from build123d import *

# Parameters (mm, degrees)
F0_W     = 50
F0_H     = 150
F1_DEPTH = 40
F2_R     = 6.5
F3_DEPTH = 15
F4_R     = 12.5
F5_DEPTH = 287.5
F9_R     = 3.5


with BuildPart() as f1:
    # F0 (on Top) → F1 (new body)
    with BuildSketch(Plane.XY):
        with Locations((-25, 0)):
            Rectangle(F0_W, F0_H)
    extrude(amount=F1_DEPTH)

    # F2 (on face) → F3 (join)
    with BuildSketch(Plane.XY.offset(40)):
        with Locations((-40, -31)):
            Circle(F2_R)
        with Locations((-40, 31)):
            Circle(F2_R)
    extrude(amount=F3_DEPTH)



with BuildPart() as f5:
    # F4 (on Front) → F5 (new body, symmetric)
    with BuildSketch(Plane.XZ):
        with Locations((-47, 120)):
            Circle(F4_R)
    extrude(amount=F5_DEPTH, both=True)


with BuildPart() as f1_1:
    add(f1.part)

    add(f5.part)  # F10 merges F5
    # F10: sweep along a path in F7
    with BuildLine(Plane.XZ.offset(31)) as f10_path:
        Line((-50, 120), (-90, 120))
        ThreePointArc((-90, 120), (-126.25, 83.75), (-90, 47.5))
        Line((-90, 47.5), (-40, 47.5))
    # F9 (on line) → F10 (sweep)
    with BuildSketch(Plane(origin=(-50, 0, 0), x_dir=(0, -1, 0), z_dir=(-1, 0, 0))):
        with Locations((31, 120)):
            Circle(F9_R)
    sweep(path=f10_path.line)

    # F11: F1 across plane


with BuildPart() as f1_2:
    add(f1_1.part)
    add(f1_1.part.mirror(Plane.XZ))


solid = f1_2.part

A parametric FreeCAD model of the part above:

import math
import FreeCAD as App
import Part
import Sketcher

V = App.Vector
Q = App.Units.Quantity


def add_polygon(sketch, points):
    """Adds a closed chain of lines whose ends are joined by coincident constraints."""
    first, n = sketch.GeometryCount, len(points)
    for a, b in zip(points, points[1:] + points[:1]):
        sketch.addGeometry(Part.LineSegment(App.Vector(*a, 0), App.Vector(*b, 0)), False)
    for i in range(n):
        sketch.addConstraint(Sketcher.Constraint("Coincident", first + i, 2, first + (i + 1) % n, 1))

doc = App.newDocument("Part")
body = doc.addObject("PartDesign::Body", "Body")

# Sketch on XY plane
sketch1 = doc.addObject("Sketcher::SketchObject", "Sketch")
body.addObject(sketch1)
sketch1.AttachmentSupport = (doc.XY_Plane, [""])
sketch1.MapMode = "FlatFace"
add_polygon(sketch1, [(-50, 75), (-50, -75), (0, -75), (0, 75)])  # lines 0-3
sketch1.addConstraint([
    Sketcher.Constraint("Vertical", 0),
    Sketcher.Constraint("Horizontal", 1),
    Sketcher.Constraint("Vertical", 2),
    Sketcher.Constraint("Horizontal", 3),
    Sketcher.Constraint("Symmetric", 1, 2, 2, 2, -1, 1),
    Sketcher.Constraint("DistanceX", 1, 1, 1, 2, Q("50 mm")),
    Sketcher.Constraint("DistanceY", 0, 2, 0, 1, Q("150 mm")),
])
pad1 = doc.addObject("PartDesign::Pad", "Pad")
body.addObject(pad1)
pad1.Profile = sketch1
pad1.Length = 40

# Sketch on XY plane
sketch2 = doc.addObject("Sketcher::SketchObject", "Sketch001")
body.addObject(sketch2)
sketch2.AttachmentSupport = (doc.XY_Plane, [""])
sketch2.MapMode = "FlatFace"
sketch2.AttachmentOffset = App.Placement(V(0, 0, 40), App.Rotation())
sketch2.addGeometry([
    Part.Circle(V(-40, -31, 0), V(0, 0, 1), 6.5),
    Part.Circle(V(-40, 31, 0), V(0, 0, 1), 6.5),
], False)
sketch2.addConstraint([
    Sketcher.Constraint("Equal", 0, 1),
    Sketcher.Constraint("Symmetric", 0, 3, 1, 3, -1),
    Sketcher.Constraint("Diameter", 0, Q("13 mm")),
    Sketcher.Constraint("DistanceX", 0, 3, -1, 1, Q("40 mm")),
    Sketcher.Constraint("DistanceY", 0, 3, -1, 1, Q("31 mm")),
])
pad2 = doc.addObject("PartDesign::Pad", "Pad001")
body.addObject(pad2)
pad2.Profile = sketch2
pad2.Length = 15
body2 = doc.addObject("PartDesign::Body", "Body001")

# Sketch on XZ plane
sketch3 = doc.addObject("Sketcher::SketchObject", "Sketch002")
body2.addObject(sketch3)
sketch3.AttachmentSupport = (doc.getObject("XZ_Plane001"), [""])
sketch3.MapMode = "FlatFace"
sketch3.addGeometry(Part.Circle(V(-47, 120, 0), V(0, 0, 1), 12.5), False)
sketch3.addConstraint([
    Sketcher.Constraint("Diameter", 0, Q("25 mm")),
    Sketcher.Constraint("DistanceX", 0, 3, -1, 1, Q("47 mm")),
    Sketcher.Constraint("DistanceY", -1, 1, 0, 3, Q("120 mm")),
])
pad3 = doc.addObject("PartDesign::Pad", "Pad002")
body2.addObject(pad3)
pad3.Profile = sketch3
pad3.Length = 575
pad3.Midplane = True
body.AllowCompound = True
doc.recompute()

boolean = doc.addObject("PartDesign::Boolean", "Boolean")
body.addObject(boolean)
boolean.Type = "Fuse"
boolean.addObjects([body2])

# Sketch on YZ plane
sketch4 = doc.addObject("Sketcher::SketchObject", "Sketch003")
body.addObject(sketch4)
sketch4.AttachmentSupport = (doc.YZ_Plane, [""])
sketch4.MapMode = "FlatFace"
sketch4.AttachmentOffset = App.Placement(V(0, 0, -50), App.Rotation())
sketch4.addGeometry(Part.Circle(V(-31, 120, 0), V(0, 0, 1), 3.5), False)
sketch4.addConstraint([
    Sketcher.Constraint("Diameter", 0, Q("7 mm")),
    Sketcher.Constraint("DistanceX", 0, 3, -1, 1, Q("31 mm")),
    Sketcher.Constraint("DistanceY", -1, 1, 0, 3, Q("120 mm")),
])

# Sketch on XZ plane
sketch5 = doc.addObject("Sketcher::SketchObject", "Sketch004")
body.addObject(sketch5)
sketch5.AttachmentSupport = (doc.XZ_Plane, [""])
sketch5.MapMode = "FlatFace"
sketch5.AttachmentOffset = App.Placement(V(0, 0, 31), App.Rotation())
sketch5.addGeometry([
    Part.LineSegment(V(-50, 120, 0), V(-90, 120, 0)),
    Part.ArcOfCircle(Part.Circle(V(-90, 83.75, 0), V(0, 0, 1), 36.25), math.radians(90), math.radians(270)),
    Part.LineSegment(V(-90, 47.5, 0), V(-40, 47.5, 0)),
], False)
sketch5.addConstraint([
    Sketcher.Constraint("Tangent", 0, 2, 1, 1),
    Sketcher.Constraint("Tangent", 1, 2, 2, 1),
    Sketcher.Constraint("Horizontal", 0),
    Sketcher.Constraint("Horizontal", 2),
    Sketcher.Constraint("DistanceX", 0, 2, 0, 1, Q("40 mm")),
    Sketcher.Constraint("DistanceX", 2, 1, 2, 2, Q("50 mm")),
    Sketcher.Constraint("Radius", 1, Q("36.25 mm")),
    Sketcher.Constraint("DistanceX", 1, 3, -1, 1, Q("90 mm")),
    Sketcher.Constraint("DistanceY", -1, 1, 0, 1, Q("120 mm")),
])
doc.recompute()

additivepipe = doc.addObject("PartDesign::AdditivePipe", "AdditivePipe")
body.addObject(additivepipe)
additivepipe.Profile = sketch4
additivepipe.Spine = (sketch5, ["Edge1", "Edge2", "Edge3"])
body3 = doc.addObject("PartDesign::Body", "Body002")
doc.recompute()

body3.BaseFeature = body
doc.recompute()

mirroring = doc.addObject("Part::Mirroring", "Mirroring")
mirroring.Source = body
mirroring.Base = V(0, 0, 0)
mirroring.Normal = V(0, -1, 0)
body4 = doc.addObject("PartDesign::Body", "Body003")
body4.BaseFeature = mirroring
boolean2 = doc.addObject("PartDesign::Boolean", "Boolean001")
body3.addObject(boolean2)
boolean2.Type = "Fuse"
boolean2.addObjects([body4])
doc.recompute()
mirroring.Visibility = False

doc.recompute()
